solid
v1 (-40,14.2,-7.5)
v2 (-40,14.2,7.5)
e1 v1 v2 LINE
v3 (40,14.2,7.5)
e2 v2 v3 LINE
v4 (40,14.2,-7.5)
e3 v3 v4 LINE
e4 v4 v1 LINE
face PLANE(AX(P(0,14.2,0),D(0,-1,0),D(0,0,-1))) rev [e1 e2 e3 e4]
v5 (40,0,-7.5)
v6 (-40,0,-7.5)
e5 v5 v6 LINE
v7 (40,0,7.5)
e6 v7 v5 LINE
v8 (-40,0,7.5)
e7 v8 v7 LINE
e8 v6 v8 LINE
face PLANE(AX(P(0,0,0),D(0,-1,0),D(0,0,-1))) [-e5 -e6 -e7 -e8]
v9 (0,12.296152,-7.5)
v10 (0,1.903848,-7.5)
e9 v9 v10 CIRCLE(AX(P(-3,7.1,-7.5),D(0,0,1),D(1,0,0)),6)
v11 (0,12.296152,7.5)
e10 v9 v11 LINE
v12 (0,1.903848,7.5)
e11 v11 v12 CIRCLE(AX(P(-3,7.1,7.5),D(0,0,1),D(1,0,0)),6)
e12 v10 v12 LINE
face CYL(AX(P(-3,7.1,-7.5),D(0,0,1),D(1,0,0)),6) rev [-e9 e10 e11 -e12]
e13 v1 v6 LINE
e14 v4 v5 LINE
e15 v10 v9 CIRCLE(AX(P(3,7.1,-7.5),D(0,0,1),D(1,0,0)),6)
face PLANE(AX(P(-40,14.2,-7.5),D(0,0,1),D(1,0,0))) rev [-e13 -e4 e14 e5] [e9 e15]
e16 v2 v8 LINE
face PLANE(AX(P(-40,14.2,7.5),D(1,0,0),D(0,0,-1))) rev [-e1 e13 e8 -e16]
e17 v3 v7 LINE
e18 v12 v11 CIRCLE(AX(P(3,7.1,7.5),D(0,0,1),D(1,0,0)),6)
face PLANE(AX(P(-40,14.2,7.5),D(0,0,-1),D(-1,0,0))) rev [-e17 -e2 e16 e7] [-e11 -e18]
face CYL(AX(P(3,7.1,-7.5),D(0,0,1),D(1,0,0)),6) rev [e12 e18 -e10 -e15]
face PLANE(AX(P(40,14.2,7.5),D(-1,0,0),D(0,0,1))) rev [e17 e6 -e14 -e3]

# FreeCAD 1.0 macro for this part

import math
import FreeCAD as App
import Part
import Sketcher
from FreeCAD import Vector
Q = App.Units.Quantity

doc = App.newDocument("Part")
params = doc.addObject("Spreadsheet::Sheet", "Params")
for row, (alias, value) in enumerate([
    ("sketch1_width", "80 mm"),
    ("sketch1_height", "15 mm"),
    ("pad1_length", "14.2 mm"),
    ("sketch2_radius", "6 mm"),
], start=1):
    params.set(f"A{row}", alias)
    params.set(f"B{row}", "=" + value)
    params.setAlias(f"B{row}", alias)

body = doc.addObject("PartDesign::Body", "Body")

# Sketch on XZ plane
sketch1 = body.newObject("Sketcher::SketchObject", "Sketch")
sketch1.AttachmentSupport = (doc.getObject("XZ_Plane"), [""])
sketch1.MapMode = "FlatFace"
sketch1.addGeometry([
    Part.LineSegment(Vector(-40, -8, 0), Vector(-40, 8, 0)),
    Part.LineSegment(Vector(-40, 8, 0), Vector(40, 8, 0)),
    Part.LineSegment(Vector(40, 8, 0), Vector(40, -8, 0)),
    Part.LineSegment(Vector(40, -8, 0), Vector(-40, -8, 0)),
], False)
sketch1.addConstraint([
    Sketcher.Constraint("Coincident", 0, 2, 1, 1),
    Sketcher.Constraint("Coincident", 1, 2, 2, 1),
    Sketcher.Constraint("Coincident", 2, 2, 3, 1),
    Sketcher.Constraint("Coincident", 3, 2, 0, 1),
    Sketcher.Constraint("Vertical", 0),
    Sketcher.Constraint("Horizontal", 1),
    Sketcher.Constraint("Vertical", 2),
    Sketcher.Constraint("Horizontal", 3),
    Sketcher.Constraint("Symmetric", 0, 2, 2, 2, -1, 1),
    Sketcher.Constraint("DistanceX", 1, 1, 1, 2, Q("80 mm")),
    Sketcher.Constraint("DistanceY", 0, 1, 0, 2, Q("15 mm")),
])
sketch1.setExpression("Constraints[9]", "Params.sketch1_width")
sketch1.setExpression("Constraints[10]", "Params.sketch1_height")
pad1 = body.newObject("PartDesign::Pad", "Pad")
pad1.Profile = sketch1
pad1.setExpression("Length", "Params.pad1_length")
pad1.Reversed = True

# Sketch on XY plane
sketch2 = body.newObject("Sketcher::SketchObject", "Sketch001")
sketch2.AttachmentSupport = (doc.getObject("XY_Plane"), [""])
sketch2.MapMode = "FlatFace"
sketch2.AttachmentOffset = App.Placement(Vector(0, 0, 7.5), App.Rotation())
sketch2.addGeometry([
    Part.ArcOfCircle(Part.Circle(Vector(3, 7, 0), Vector(0, 0, 1), 6), math.radians(-120), math.radians(120)),
    Part.ArcOfCircle(Part.Circle(Vector(-3, 7, 0), Vector(0, 0, 1), 6), math.radians(60), math.radians(300)),
], False)
sketch2.addConstraint([
    Sketcher.Constraint("Coincident", 0, 1, 1, 2),
    Sketcher.Constraint("Coincident", 1, 1, 0, 2),
    Sketcher.Constraint("Equal", 0, 1),
    Sketcher.Constraint("Symmetric", 0, 3, 1, 3, -2),
    Sketcher.Constraint("Radius", 0, Q("6 mm")),
    Sketcher.Constraint("DistanceX", -1, 1, 0, 3, Q("3 mm")),
    Sketcher.Constraint("DistanceY", -1, 1, 0, 3, Q("7.1 mm")),
])
sketch2.setExpression("Constraints[4]", "Params.sketch2_radius")
pocket1 = body.newObject("PartDesign::Pocket", "Pocket")
pocket1.Profile = sketch2
pocket1.Type = "ThroughAll"

doc.recompute()
